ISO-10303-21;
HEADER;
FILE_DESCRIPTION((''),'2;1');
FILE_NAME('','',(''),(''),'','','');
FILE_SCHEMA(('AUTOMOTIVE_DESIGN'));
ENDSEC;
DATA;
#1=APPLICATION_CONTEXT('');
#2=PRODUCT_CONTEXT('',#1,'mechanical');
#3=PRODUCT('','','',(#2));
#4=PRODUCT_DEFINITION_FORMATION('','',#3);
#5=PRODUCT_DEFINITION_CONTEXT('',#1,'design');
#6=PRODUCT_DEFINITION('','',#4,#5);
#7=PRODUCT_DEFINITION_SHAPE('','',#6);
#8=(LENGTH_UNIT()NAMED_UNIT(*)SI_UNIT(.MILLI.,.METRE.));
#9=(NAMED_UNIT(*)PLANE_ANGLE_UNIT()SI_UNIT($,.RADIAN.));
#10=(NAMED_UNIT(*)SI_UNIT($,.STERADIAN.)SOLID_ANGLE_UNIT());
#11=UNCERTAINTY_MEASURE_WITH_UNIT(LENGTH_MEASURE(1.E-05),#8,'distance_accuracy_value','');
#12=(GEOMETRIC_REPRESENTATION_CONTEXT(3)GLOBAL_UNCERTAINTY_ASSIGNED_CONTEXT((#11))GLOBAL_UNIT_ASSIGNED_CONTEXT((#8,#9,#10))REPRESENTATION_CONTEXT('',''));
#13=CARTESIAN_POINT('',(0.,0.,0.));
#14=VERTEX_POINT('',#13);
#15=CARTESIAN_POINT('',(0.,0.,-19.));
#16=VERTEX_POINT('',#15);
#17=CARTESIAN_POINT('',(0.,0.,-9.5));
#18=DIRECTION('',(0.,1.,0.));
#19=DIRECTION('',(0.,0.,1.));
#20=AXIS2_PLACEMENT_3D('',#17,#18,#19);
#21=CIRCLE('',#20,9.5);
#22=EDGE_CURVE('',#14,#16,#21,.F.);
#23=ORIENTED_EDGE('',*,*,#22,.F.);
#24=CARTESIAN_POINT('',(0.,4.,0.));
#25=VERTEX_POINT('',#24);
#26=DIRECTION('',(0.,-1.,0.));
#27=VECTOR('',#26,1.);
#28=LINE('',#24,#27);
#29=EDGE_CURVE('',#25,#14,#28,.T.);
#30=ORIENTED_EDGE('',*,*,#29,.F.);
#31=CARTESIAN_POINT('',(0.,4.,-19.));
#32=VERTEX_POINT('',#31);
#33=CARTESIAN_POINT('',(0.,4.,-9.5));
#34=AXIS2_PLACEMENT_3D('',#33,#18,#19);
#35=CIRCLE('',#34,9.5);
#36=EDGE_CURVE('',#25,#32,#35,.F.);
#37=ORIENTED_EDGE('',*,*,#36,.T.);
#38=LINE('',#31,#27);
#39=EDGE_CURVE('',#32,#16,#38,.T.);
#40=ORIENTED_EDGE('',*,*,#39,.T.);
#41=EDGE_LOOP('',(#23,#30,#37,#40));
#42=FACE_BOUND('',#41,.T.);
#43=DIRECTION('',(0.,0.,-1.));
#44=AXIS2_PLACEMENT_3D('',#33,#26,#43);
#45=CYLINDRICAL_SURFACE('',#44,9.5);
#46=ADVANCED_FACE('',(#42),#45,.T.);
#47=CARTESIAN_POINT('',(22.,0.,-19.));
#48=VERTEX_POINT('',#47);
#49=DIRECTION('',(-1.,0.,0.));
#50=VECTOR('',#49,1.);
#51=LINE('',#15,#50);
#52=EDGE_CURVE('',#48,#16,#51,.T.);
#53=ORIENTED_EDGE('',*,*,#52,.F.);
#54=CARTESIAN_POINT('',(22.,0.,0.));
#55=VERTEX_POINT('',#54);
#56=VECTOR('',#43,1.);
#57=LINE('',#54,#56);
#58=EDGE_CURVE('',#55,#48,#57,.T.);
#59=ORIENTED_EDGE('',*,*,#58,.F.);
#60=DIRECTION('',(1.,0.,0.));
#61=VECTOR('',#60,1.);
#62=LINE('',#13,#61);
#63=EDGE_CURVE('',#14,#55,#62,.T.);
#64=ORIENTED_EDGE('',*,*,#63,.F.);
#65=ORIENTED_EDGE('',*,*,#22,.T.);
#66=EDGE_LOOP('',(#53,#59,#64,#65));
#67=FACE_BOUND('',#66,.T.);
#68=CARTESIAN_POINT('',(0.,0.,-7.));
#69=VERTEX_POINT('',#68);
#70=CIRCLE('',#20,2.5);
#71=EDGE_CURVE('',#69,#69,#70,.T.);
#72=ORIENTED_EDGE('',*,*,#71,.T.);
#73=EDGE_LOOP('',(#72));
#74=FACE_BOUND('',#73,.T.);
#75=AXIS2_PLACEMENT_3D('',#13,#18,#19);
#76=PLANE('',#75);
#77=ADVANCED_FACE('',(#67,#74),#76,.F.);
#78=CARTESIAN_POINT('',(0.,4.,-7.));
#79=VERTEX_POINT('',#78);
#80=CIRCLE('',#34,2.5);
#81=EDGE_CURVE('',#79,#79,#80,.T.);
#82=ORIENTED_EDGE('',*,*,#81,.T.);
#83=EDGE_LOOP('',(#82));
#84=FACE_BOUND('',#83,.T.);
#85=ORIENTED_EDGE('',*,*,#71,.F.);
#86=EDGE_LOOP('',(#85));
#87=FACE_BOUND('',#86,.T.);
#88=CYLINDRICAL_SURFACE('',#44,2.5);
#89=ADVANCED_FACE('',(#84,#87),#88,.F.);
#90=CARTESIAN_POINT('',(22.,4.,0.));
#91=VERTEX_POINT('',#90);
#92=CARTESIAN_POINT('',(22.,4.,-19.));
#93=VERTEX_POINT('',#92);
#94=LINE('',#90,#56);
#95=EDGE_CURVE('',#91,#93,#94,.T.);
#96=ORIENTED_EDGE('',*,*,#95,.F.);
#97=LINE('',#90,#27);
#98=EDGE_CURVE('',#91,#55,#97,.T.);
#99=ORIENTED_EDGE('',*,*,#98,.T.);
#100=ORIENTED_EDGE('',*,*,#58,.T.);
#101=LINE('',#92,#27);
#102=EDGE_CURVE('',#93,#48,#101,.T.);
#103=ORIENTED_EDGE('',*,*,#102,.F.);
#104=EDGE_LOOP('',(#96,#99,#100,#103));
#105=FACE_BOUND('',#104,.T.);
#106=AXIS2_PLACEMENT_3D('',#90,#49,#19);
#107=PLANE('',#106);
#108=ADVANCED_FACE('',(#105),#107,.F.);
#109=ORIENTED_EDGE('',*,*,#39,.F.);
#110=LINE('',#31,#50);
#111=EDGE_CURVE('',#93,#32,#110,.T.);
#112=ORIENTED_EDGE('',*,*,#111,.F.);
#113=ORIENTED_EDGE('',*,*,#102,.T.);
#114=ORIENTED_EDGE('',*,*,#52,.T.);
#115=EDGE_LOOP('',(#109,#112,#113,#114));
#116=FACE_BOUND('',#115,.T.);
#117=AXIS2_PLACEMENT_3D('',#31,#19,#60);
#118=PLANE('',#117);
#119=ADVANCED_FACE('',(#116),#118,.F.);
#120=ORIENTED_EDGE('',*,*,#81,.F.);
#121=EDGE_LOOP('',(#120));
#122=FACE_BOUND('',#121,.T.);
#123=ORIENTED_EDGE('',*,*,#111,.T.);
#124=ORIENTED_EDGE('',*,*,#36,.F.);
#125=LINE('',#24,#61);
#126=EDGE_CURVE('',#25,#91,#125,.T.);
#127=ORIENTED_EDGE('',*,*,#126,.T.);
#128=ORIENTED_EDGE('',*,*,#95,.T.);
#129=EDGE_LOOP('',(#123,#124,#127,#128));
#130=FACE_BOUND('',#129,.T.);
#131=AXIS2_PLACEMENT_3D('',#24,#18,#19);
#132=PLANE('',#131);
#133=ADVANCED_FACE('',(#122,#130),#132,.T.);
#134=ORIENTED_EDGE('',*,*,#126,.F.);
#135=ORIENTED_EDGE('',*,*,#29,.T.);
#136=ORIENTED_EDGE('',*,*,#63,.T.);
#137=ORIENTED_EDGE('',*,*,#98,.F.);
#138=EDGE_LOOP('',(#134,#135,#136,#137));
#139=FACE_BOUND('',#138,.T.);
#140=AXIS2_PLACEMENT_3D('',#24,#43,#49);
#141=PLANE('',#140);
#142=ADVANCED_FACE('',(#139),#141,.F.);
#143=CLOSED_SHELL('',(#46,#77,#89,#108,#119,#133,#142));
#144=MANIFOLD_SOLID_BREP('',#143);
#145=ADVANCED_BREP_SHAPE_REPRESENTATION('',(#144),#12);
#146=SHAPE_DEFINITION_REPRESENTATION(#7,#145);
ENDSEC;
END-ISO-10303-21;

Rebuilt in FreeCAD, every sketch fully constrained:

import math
import FreeCAD as App
import Part
import Sketcher

doc = App.newDocument("Part")
body = doc.addObject("PartDesign::Body", "Body")

# Sketch on XZ plane
sketch1 = body.newObject("Sketcher::SketchObject", "Sketch")
sketch1.AttachmentSupport = (doc.getObject("XZ_Plane"), [""])
sketch1.MapMode = "FlatFace"
sketch1.addGeometry(Part.LineSegment(App.Vector(0, 0, 0), App.Vector(22, 0, 0)), False)
sketch1.addGeometry(Part.LineSegment(App.Vector(22, 0, 0), App.Vector(22, -19, 0)), False)
sketch1.addGeometry(Part.LineSegment(App.Vector(22, -19, 0), App.Vector(0, -19, 0)), False)
sketch1.addGeometry(Part.ArcOfCircle(Part.Circle(App.Vector(0, -9.5, 0), App.Vector(0, 0, 1), 9.5), math.radians(90), math.radians(270)), False)
sketch1.addGeometry(Part.Circle(App.Vector(0, -9.5, 0), App.Vector(0, 0, 1), 2.5), False)
sketch1.addConstraint(Sketcher.Constraint("Coincident", 0, 2, 1, 1))
sketch1.addConstraint(Sketcher.Constraint("Coincident", 1, 2, 2, 1))
sketch1.addConstraint(Sketcher.Constraint("Tangent", 2, 2, 3, 2))
sketch1.addConstraint(Sketcher.Constraint("Tangent", 3, 1, 0, 1))
sketch1.addConstraint(Sketcher.Constraint("Horizontal", 0))
sketch1.addConstraint(Sketcher.Constraint("Vertical", 1))
sketch1.addConstraint(Sketcher.Constraint("Horizontal", 2))
sketch1.addConstraint(Sketcher.Constraint("Coincident", 3, 1, -1, 1))
sketch1.addConstraint(Sketcher.Constraint("Coincident", 4, 3, 3, 3))
sketch1.addConstraint(Sketcher.Constraint("Diameter", 4, 5.0))
sketch1.addConstraint(Sketcher.Constraint("Radius", 3, 9.5))
sketch1.addConstraint(Sketcher.Constraint("DistanceX", 0, 1, 0, 2, 22.0))
pad1 = body.newObject("PartDesign::Pad", "Pad")
pad1.Profile = sketch1
pad1.Length = 4
pad1.Reversed = True

doc.recompute()
